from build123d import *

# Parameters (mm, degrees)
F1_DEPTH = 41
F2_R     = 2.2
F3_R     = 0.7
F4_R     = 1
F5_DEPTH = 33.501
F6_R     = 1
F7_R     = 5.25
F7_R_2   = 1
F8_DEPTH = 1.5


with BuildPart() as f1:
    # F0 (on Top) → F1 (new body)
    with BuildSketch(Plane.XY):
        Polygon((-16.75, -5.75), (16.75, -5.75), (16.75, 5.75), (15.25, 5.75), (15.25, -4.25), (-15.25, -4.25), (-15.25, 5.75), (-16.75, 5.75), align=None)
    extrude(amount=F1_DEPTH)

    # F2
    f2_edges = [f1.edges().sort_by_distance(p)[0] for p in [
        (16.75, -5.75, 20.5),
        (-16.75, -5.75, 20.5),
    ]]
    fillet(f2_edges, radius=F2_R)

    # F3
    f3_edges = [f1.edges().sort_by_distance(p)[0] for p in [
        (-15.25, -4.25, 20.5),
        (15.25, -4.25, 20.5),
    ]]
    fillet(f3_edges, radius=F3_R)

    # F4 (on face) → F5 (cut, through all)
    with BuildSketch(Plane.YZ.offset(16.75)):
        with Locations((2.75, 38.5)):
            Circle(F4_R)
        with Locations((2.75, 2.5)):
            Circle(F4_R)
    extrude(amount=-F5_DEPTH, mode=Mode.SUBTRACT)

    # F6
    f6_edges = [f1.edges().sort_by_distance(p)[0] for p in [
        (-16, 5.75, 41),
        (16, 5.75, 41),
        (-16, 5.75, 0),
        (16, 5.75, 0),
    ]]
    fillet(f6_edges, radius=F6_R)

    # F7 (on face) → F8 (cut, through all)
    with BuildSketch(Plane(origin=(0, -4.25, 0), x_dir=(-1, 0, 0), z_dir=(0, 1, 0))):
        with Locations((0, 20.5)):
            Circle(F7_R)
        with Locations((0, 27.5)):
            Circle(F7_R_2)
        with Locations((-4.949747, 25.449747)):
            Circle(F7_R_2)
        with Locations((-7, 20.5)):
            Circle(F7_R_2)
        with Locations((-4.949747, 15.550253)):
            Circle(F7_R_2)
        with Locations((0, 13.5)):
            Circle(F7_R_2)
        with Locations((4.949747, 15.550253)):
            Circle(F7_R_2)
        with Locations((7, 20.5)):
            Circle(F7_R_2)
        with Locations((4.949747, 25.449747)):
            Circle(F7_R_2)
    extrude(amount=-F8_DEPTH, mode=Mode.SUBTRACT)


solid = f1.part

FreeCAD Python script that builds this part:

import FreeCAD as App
import Part
import Sketcher

V = App.Vector


def edges_at(feature, points):
    """Names of the edges that pass closest to the given points."""
    edges = feature.Shape.Edges
    near = lambda p: min(range(len(edges)), key=lambda i: edges[i].distToShape(Part.Vertex(*p))[0])
    return sorted({f"Edge{near(p) + 1}" for p in points})

doc = App.newDocument("Part")
body = doc.addObject("PartDesign::Body", "Body")

# Sketch on XY plane
sketch1 = body.newObject("Sketcher::SketchObject", "Sketch")
sketch1.AttachmentSupport = (doc.getObject("XY_Plane"), [""])
sketch1.MapMode = "FlatFace"
sketch1.addGeometry([
    Part.LineSegment(V(-16.8, -5.8, 0), V(16.8, -5.8, 0)),  # 0
    Part.LineSegment(V(16.8, -5.8, 0), V(16.8, 5.8, 0)),  # 1
    Part.LineSegment(V(16.8, 5.8, 0), V(15.2, 5.8, 0)),  # 2
    Part.LineSegment(V(15.2, 5.8, 0), V(15.2, -4.2, 0)),  # 3
    Part.LineSegment(V(15.2, -4.2, 0), V(-15.2, -4.2, 0)),  # 4
    Part.LineSegment(V(-15.2, -4.2, 0), V(-15.2, 5.8, 0)),  # 5
    Part.LineSegment(V(-15.2, 5.8, 0), V(-16.8, 5.8, 0)),  # 6
    Part.LineSegment(V(-16.8, 5.8, 0), V(-16.8, -5.8, 0)),  # 7
], False)
sketch1.addConstraint([
    Sketcher.Constraint("Coincident", 0, 2, 1, 1),
    Sketcher.Constraint("Coincident", 1, 2, 2, 1),
    Sketcher.Constraint("Coincident", 2, 2, 3, 1),
    Sketcher.Constraint("Coincident", 3, 2, 4, 1),
    Sketcher.Constraint("Coincident", 4, 2, 5, 1),
    Sketcher.Constraint("Coincident", 5, 2, 6, 1),
    Sketcher.Constraint("Coincident", 6, 2, 7, 1),
    Sketcher.Constraint("Coincident", 7, 2, 0, 1),
    Sketcher.Constraint("Horizontal", 0),
    Sketcher.Constraint("Vertical", 1),
    Sketcher.Constraint("Horizontal", 2),
    Sketcher.Constraint("Vertical", 3),
    Sketcher.Constraint("Horizontal", 4),
    Sketcher.Constraint("Vertical", 5),
    Sketcher.Constraint("Horizontal", 6),
    Sketcher.Constraint("Vertical", 7),
    Sketcher.Constraint("Symmetric", 0, 2, 6, 2, -1, 1),
    Sketcher.Constraint("Symmetric", 2, 2, 5, 2, -2),
    Sketcher.Constraint("DistanceY", 3, 2, 3, 1, 10.0),
    Sketcher.Constraint("DistanceX", 0, 1, 0, 2, 33.5),
    Sketcher.Constraint("DistanceX", 2, 2, 2, 1, 1.5),
    Sketcher.Constraint("DistanceY", 1, 1, 1, 2, 11.5),
])
pad1 = body.newObject("PartDesign::Pad", "Pad")
pad1.Profile = sketch1
pad1.Length = 41
doc.recompute()

fillet = body.newObject("PartDesign::Fillet", "Fillet")
fillet.Base = (pad1, edges_at(pad1, [(16.75, -5.75, 20.5), (-16.75, -5.75, 20.5)]))
fillet.Radius = 2.2
doc.recompute()

fillet2 = body.newObject("PartDesign::Fillet", "Fillet001")
fillet2.Base = (fillet, edges_at(fillet, [(-15.25, -4.25, 20.5), (15.25, -4.25, 20.5)]))
fillet2.Radius = 0.7

# Sketch on YZ plane
sketch2 = body.newObject("Sketcher::SketchObject", "Sketch001")
sketch2.AttachmentSupport = (doc.getObject("YZ_Plane"), [""])
sketch2.MapMode = "FlatFace"
sketch2.AttachmentOffset = App.Placement(V(0, 0, 16.75), App.Rotation())
sketch2.addGeometry([
    Part.Circle(V(2.8, 38.5, 0), V(0, 0, 1), 1),
    Part.Circle(V(2.8, 2.5, 0), V(0, 0, 1), 1),
], False)
sketch2.addConstraint([
    Sketcher.Constraint("Equal", 0, 1),
    Sketcher.Constraint("Vertical", 0, 3, 1, 3),
    Sketcher.Constraint("Diameter", 0, 2.0),
    Sketcher.Constraint("DistanceY", 1, 3, 0, 3, 36.0),
    Sketcher.Constraint("DistanceY", -1, 1, 0, 3, 38.5),
    Sketcher.Constraint("DistanceX", -1, 1, 0, 3, 2.75),
])
pocket1 = body.newObject("PartDesign::Pocket", "Pocket")
pocket1.Profile = sketch2
pocket1.Type = "ThroughAll"
doc.recompute()

fillet3 = body.newObject("PartDesign::Fillet", "Fillet002")
fillet3.Base = (pocket1, edges_at(pocket1, [
    (-16, 5.75, 41),
    (16, 5.75, 41),
    (-16, 5.75, 0),
    (16, 5.75, 0),
]))
fillet3.Radius = 1

# Sketch on XZ plane
sketch3 = body.newObject("Sketcher::SketchObject", "Sketch002")
sketch3.AttachmentSupport = (doc.getObject("XZ_Plane"), [""])
sketch3.MapMode = "FlatFace"
sketch3.AttachmentOffset = App.Placement(V(0, 0, 4.25), App.Rotation())
sketch3.addGeometry([
    Part.Circle(V(0, 20.5, 0), V(0, 0, 1), 5.2),  # 0
    Part.Circle(V(0, 27.5, 0), V(0, 0, 1), 1),  # 1
    Part.Circle(V(4.9, 25.4, 0), V(0, 0, 1), 1),  # 2
    Part.Circle(V(7, 20.5, 0), V(0, 0, 1), 1),  # 3
    Part.Circle(V(4.9, 15.6, 0), V(0, 0, 1), 1),  # 4
    Part.Circle(V(0, 13.5, 0), V(0, 0, 1), 1),  # 5
    Part.Circle(V(-4.9, 15.6, 0), V(0, 0, 1), 1),  # 6
    Part.Circle(V(-7, 20.5, 0), V(0, 0, 1), 1),  # 7
    Part.Circle(V(-4.9, 25.4, 0), V(0, 0, 1), 1),  # 8
], False)
sketch3.addConstraint([
    Sketcher.Constraint("Equal", 1, 2),
    Sketcher.Constraint("Equal", 2, 3),
    Sketcher.Constraint("Equal", 3, 4),
    Sketcher.Constraint("Equal", 4, 5),
    Sketcher.Constraint("Equal", 5, 6),
    Sketcher.Constraint("Equal", 6, 7),
    Sketcher.Constraint("Equal", 7, 8),
    Sketcher.Constraint("Symmetric", 4, 3, 6, 3, -2),
    Sketcher.Constraint("Symmetric", 3, 3, 7, 3, -2),
    Sketcher.Constraint("Symmetric", 2, 3, 8, 3, -2),
    Sketcher.Constraint("PointOnObject", 0, 3, -2),
    Sketcher.Constraint("PointOnObject", 1, 3, -2),
    Sketcher.Constraint("PointOnObject", 5, 3, -2),
    Sketcher.Constraint("Horizontal", 0, 3, 3, 3),
    Sketcher.Constraint("Vertical", 2, 3, 4, 3),
    Sketcher.Constraint("Diameter", 1, 2.0),
    Sketcher.Constraint("Diameter", 0, 10.5),
    Sketcher.Constraint("DistanceX", -1, 1, 3, 3, 7.0),
    Sketcher.Constraint("DistanceY", 0, 3, 1, 3, 7.0),
    Sketcher.Constraint("DistanceY", 5, 3, 0, 3, 7.0),
    Sketcher.Constraint("DistanceY", -1, 1, 0, 3, 20.5),
    Sketcher.Constraint("DistanceX", -1, 1, 2, 3, 4.949747),
    Sketcher.Constraint("DistanceY", -1, 1, 2, 3, 25.449747),
    Sketcher.Constraint("DistanceY", -1, 1, 4, 3, 15.550253),
])
pocket2 = body.newObject("PartDesign::Pocket", "Pocket001")
pocket2.Profile = sketch3
pocket2.Type = "ThroughAll"
pocket2.Reversed = True

doc.recompute()
